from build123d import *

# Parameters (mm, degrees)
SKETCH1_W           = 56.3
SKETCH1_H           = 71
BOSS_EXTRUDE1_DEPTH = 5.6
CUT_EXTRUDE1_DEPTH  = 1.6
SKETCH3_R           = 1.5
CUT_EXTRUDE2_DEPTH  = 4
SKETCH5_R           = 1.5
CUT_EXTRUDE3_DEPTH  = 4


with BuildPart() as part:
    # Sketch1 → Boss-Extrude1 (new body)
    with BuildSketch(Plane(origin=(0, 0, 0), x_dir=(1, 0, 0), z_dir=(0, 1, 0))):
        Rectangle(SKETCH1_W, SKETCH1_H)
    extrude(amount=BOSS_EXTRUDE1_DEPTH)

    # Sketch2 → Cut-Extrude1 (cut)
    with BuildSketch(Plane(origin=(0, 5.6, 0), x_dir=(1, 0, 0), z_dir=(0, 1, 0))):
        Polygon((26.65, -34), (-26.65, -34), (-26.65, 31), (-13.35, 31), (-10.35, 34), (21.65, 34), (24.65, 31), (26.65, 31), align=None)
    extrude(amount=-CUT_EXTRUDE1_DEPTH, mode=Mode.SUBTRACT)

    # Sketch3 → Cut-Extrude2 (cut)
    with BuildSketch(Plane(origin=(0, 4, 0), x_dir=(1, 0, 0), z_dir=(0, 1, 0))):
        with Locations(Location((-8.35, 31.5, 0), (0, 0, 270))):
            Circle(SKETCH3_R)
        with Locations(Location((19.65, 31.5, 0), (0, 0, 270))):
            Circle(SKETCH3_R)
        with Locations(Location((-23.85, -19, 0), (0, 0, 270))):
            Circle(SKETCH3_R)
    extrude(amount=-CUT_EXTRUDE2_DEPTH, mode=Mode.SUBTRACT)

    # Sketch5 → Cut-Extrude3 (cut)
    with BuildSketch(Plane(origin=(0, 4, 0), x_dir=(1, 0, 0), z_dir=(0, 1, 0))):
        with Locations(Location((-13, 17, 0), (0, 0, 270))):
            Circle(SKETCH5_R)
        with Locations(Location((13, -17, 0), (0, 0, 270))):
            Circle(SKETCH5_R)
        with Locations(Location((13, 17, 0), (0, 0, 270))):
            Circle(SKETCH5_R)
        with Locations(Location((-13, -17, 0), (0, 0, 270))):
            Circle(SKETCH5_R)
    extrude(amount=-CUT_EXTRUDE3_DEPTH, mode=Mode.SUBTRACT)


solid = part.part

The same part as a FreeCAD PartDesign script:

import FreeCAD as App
import Part
import Sketcher

V = App.Vector

doc = App.newDocument("Part")
params = doc.addObject("Spreadsheet::Sheet", "Params")
for row, (alias, value) in enumerate([
    ("sketch1_height", "71 mm"),
    ("sketch1_width", "56.3 mm"),
    ("pad1_length", "5.6 mm"),
    ("sketch2_width", "2 mm"),
    ("sketch2_width2", "32 mm"),
    ("sketch2_height", "65 mm"),
    ("sketch2_width3", "53.3 mm"),
    ("sketch2_width4", "13.3 mm"),
    ("pocket1_length", "1.6 mm"),
    ("sketch3_diameter", "3 mm"),
    ("pocket2_length", "4 mm"),
    ("sketch4_diameter", "3 mm"),
    ("pocket3_length", "4 mm"),
], start=1):
    params.set(f"A{row}", alias)
    params.set(f"B{row}", "=" + value)
    params.setAlias(f"B{row}", alias)

body = doc.addObject("PartDesign::Body", "Body")

# Sketch on XZ plane
sketch1 = body.newObject("Sketcher::SketchObject", "Sketch")
sketch1.AttachmentSupport = (doc.getObject("XZ_Plane"), [""])
sketch1.MapMode = "FlatFace"
sketch1.addGeometry([
    Part.LineSegment(V(-28, -36, 0), V(-28, 36, 0)),
    Part.LineSegment(V(-28, 36, 0), V(28, 36, 0)),
    Part.LineSegment(V(28, 36, 0), V(28, -36, 0)),
    Part.LineSegment(V(28, -36, 0), V(-28, -36, 0)),
], False)
sketch1.addConstraint([
    Sketcher.Constraint("Coincident", 0, 2, 1, 1),
    Sketcher.Constraint("Coincident", 1, 2, 2, 1),
    Sketcher.Constraint("Coincident", 2, 2, 3, 1),
    Sketcher.Constraint("Coincident", 3, 2, 0, 1),
    Sketcher.Constraint("Vertical", 0),
    Sketcher.Constraint("Horizontal", 1),
    Sketcher.Constraint("Vertical", 2),
    Sketcher.Constraint("Horizontal", 3),
    Sketcher.Constraint("Symmetric", 0, 2, 2, 2, -1, 1),
    Sketcher.Constraint("DistanceY", 0, 1, 0, 2, 71.0),
    Sketcher.Constraint("DistanceX", 1, 1, 1, 2, 56.3),
])
sketch1.setExpression("Constraints[9]", "Params.sketch1_height")
sketch1.setExpression("Constraints[10]", "Params.sketch1_width")
pad1 = body.newObject("PartDesign::Pad", "Pad")
pad1.Profile = sketch1
pad1.setExpression("Length", "Params.pad1_length")
pad1.Reversed = True

# Sketch on XZ plane
sketch2 = body.newObject("Sketcher::SketchObject", "Sketch001")
sketch2.AttachmentSupport = (doc.getObject("XZ_Plane"), [""])
sketch2.MapMode = "FlatFace"
sketch2.AttachmentOffset = App.Placement(V(0, 0, -5.6), App.Rotation())
sketch2.addGeometry([
    Part.LineSegment(V(-26.6, 34, 0), V(26.6, 34, 0)),  # 0
    Part.LineSegment(V(26.6, 34, 0), V(26.6, -31, 0)),  # 1
    Part.LineSegment(V(26.6, -31, 0), V(24.6, -31, 0)),  # 2
    Part.LineSegment(V(24.6, -31, 0), V(21.6, -34, 0)),  # 3
    Part.LineSegment(V(21.6, -34, 0), V(-10.3, -34, 0)),  # 4
    Part.LineSegment(V(-10.3, -34, 0), V(-13.3, -31, 0)),  # 5
    Part.LineSegment(V(-13.3, -31, 0), V(-26.6, -31, 0)),  # 6
    Part.LineSegment(V(-26.6, -31, 0), V(-26.6, 34, 0)),  # 7
], False)
sketch2.addConstraint([
    Sketcher.Constraint("Coincident", 0, 2, 1, 1),
    Sketcher.Constraint("Coincident", 1, 2, 2, 1),
    Sketcher.Constraint("Coincident", 2, 2, 3, 1),
    Sketcher.Constraint("Coincident", 3, 2, 4, 1),
    Sketcher.Constraint("Coincident", 4, 2, 5, 1),
    Sketcher.Constraint("Coincident", 5, 2, 6, 1),
    Sketcher.Constraint("Coincident", 6, 2, 7, 1),
    Sketcher.Constraint("Coincident", 7, 2, 0, 1),
    Sketcher.Constraint("Horizontal", 0),
    Sketcher.Constraint("Vertical", 1),
    Sketcher.Constraint("Horizontal", 2),
    Sketcher.Constraint("Horizontal", 4),
    Sketcher.Constraint("Horizontal", 6),
    Sketcher.Constraint("Vertical", 7),
    Sketcher.Constraint("Symmetric", 1, 2, 6, 2, -2),
    Sketcher.Constraint("Perpendicular", 3, 5),
    Sketcher.Constraint("Equal", 3, 5),
    Sketcher.Constraint("DistanceX", 2, 2, 2, 1, 2.0),
    Sketcher.Constraint("DistanceX", 4, 2, 4, 1, 32.0),
    Sketcher.Constraint("DistanceY", 1, 2, 1, 1, 65.0),
    Sketcher.Constraint("DistanceX", 0, 1, 0, 2, 53.3),
    Sketcher.Constraint("DistanceX", 6, 2, 6, 1, 13.3),
    Sketcher.Constraint("DistanceY", -1, 1, 0, 2, 34.0),
])
sketch2.setExpression("Constraints[17]", "Params.sketch2_width")
sketch2.setExpression("Constraints[18]", "Params.sketch2_width2")
sketch2.setExpression("Constraints[19]", "Params.sketch2_height")
sketch2.setExpression("Constraints[20]", "Params.sketch2_width3")
sketch2.setExpression("Constraints[21]", "Params.sketch2_width4")
pocket1 = body.newObject("PartDesign::Pocket", "Pocket")
pocket1.Profile = sketch2
pocket1.setExpression("Length", "Params.pocket1_length")
pocket1.Reversed = True

# Sketch on XZ plane
sketch3 = body.newObject("Sketcher::SketchObject", "Sketch002")
sketch3.AttachmentSupport = (doc.getObject("XZ_Plane"), [""])
sketch3.MapMode = "FlatFace"
sketch3.AttachmentOffset = App.Placement(V(0, 0, -4), App.Rotation())
sketch3.addGeometry([
    Part.Circle(V(-8.3, -31.5, 0), V(0, 0, 1), 1.5),
    Part.Circle(V(19.6, -31.5, 0), V(0, 0, 1), 1.5),
    Part.Circle(V(-23.9, 19, 0), V(0, 0, 1), 1.5),
], False)
sketch3.addConstraint([
    Sketcher.Constraint("Equal", 0, 1),
    Sketcher.Constraint("Equal", 1, 2),
    Sketcher.Constraint("Horizontal", 0, 3, 1, 3),
    Sketcher.Constraint("Diameter", 0, 3.0),
    Sketcher.Constraint("DistanceY", -1, 1, 2, 3, 19.0),
    Sketcher.Constraint("DistanceX", 0, 3, 1, 3, 28.0),
    Sketcher.Constraint("DistanceY", 0, 3, -1, 1, 31.5),
    Sketcher.Constraint("DistanceX", 2, 3, 0, 3, 15.5),
    Sketcher.Constraint("DistanceX", 0, 3, -1, 1, 8.35),
])
sketch3.setExpression("Constraints[3]", "Params.sketch3_diameter")
pocket2 = body.newObject("PartDesign::Pocket", "Pocket001")
pocket2.Profile = sketch3
pocket2.setExpression("Length", "Params.pocket2_length")
pocket2.Reversed = True

# Sketch on XZ plane
sketch4 = body.newObject("Sketcher::SketchObject", "Sketch003")
sketch4.AttachmentSupport = (doc.getObject("XZ_Plane"), [""])
sketch4.MapMode = "FlatFace"
sketch4.AttachmentOffset = App.Placement(V(0, 0, -4), App.Rotation())
sketch4.addGeometry([
    Part.Circle(V(-13, -17, 0), V(0, 0, 1), 1.5),
    Part.Circle(V(13, 17, 0), V(0, 0, 1), 1.5),
    Part.Circle(V(13, -17, 0), V(0, 0, 1), 1.5),
    Part.Circle(V(-13, 17, 0), V(0, 0, 1), 1.5),
], False)
sketch4.addConstraint([
    Sketcher.Constraint("Equal", 0, 1),
    Sketcher.Constraint("Equal", 1, 2),
    Sketcher.Constraint("Equal", 2, 3),
    Sketcher.Constraint("Symmetric", 0, 3, 1, 3, -1, 1),
    Sketcher.Constraint("Symmetric", 2, 3, 3, 3, -1, 1),
    Sketcher.Constraint("Symmetric", 0, 3, 2, 3, -2),
    Sketcher.Constraint("Diameter", 0, 3.0),
    Sketcher.Constraint("DistanceX", 0, 3, -1, 1, 13.0),
    Sketcher.Constraint("DistanceY", 0, 3, -1, 1, 17.0),
])
sketch4.setExpression("Constraints[6]", "Params.sketch4_diameter")
pocket3 = body.newObject("PartDesign::Pocket", "Pocket002")
pocket3.Profile = sketch4
pocket3.setExpression("Length", "Params.pocket3_length")
pocket3.Reversed = True

doc.recompute()
